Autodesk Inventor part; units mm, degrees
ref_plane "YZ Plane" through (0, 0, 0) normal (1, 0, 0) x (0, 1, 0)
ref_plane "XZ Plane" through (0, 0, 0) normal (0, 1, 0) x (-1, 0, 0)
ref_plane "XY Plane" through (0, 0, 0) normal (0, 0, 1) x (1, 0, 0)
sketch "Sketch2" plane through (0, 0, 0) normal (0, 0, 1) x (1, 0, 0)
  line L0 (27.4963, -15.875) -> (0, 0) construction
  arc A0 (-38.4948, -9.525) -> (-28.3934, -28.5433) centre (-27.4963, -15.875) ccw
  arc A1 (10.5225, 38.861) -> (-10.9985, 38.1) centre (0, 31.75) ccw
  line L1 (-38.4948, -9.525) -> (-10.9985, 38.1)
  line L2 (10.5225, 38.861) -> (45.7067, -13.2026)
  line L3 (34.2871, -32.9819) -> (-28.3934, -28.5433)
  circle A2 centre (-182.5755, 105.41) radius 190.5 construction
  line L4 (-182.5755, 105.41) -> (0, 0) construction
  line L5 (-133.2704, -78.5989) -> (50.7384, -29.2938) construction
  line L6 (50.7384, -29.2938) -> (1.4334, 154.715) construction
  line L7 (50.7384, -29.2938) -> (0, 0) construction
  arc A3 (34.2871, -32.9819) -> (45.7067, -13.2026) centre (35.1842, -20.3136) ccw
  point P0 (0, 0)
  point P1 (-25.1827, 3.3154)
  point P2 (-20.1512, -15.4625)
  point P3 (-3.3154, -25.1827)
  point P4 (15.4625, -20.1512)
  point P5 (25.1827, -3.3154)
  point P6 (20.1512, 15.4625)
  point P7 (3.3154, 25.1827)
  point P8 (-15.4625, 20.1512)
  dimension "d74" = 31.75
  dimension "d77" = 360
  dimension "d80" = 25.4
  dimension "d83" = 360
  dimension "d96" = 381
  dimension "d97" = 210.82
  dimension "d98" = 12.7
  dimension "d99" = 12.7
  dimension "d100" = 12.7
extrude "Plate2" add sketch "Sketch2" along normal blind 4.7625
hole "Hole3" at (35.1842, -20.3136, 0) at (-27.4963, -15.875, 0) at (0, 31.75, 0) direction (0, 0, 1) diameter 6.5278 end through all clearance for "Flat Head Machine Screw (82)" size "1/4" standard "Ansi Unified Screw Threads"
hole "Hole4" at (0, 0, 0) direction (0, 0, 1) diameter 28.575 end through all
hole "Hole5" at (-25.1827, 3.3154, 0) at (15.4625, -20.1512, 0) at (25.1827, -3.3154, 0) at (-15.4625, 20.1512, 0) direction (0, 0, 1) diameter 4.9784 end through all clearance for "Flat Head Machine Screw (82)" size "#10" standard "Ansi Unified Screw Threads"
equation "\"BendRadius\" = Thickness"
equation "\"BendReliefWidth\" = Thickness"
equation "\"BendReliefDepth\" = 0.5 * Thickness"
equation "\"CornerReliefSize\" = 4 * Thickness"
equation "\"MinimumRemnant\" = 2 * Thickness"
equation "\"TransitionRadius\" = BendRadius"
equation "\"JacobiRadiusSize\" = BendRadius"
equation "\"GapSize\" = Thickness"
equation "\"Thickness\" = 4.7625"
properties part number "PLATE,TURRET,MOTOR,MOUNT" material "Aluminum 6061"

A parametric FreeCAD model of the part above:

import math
import FreeCAD as App
import Part
import Sketcher
Q = App.Units.Quantity

doc = App.newDocument("Part")
body = doc.addObject("PartDesign::Body", "Body")

# Sketch on XY plane
sketch1 = body.newObject("Sketcher::SketchObject", "Sketch")
sketch1.AttachmentSupport = (doc.getObject("XY_Plane"), [""])
sketch1.MapMode = "FlatFace"
sketch1.addGeometry([
    Part.LineSegment(App.Vector(-11, 38, 0), App.Vector(-38, -10, 0)),  # 0
    Part.ArcOfCircle(Part.Circle(App.Vector(-27, -16, 0), App.Vector(0, 0, 1), 13), math.radians(150), math.radians(266)),  # 1
    Part.LineSegment(App.Vector(-28, -29, 0), App.Vector(34, -33, 0)),  # 2
    Part.ArcOfCircle(Part.Circle(App.Vector(35, -20, 0), App.Vector(0, 0, 1), 13), math.radians(-94), math.radians(34)),  # 3
    Part.LineSegment(App.Vector(46, -13, 0), App.Vector(11, 39, 0)),  # 4
    Part.ArcOfCircle(Part.Circle(App.Vector(0, 32, 0), App.Vector(0, 0, 1), 13), math.radians(34), math.radians(150)),  # 5
], False)
sketch1.addConstraint([
    Sketcher.Constraint("Tangent", 0, 2, 1, 1),
    Sketcher.Constraint("Tangent", 1, 2, 2, 1),
    Sketcher.Constraint("Tangent", 2, 2, 3, 1),
    Sketcher.Constraint("Tangent", 3, 2, 4, 1),
    Sketcher.Constraint("Tangent", 4, 2, 5, 1),
    Sketcher.Constraint("Tangent", 5, 2, 0, 1),
    Sketcher.Constraint("Equal", 1, 3),
    Sketcher.Constraint("Equal", 3, 5),
    Sketcher.Constraint("PointOnObject", 5, 3, -2),
    Sketcher.Constraint("Equal", 2, 4),
    Sketcher.Constraint("Radius", 1, Q("0.5 in")),
    Sketcher.Constraint("DistanceY", -1, 1, 5, 3, Q("1.25 in")),
    Sketcher.Constraint("Angle", 0, Q("-120 deg")),
    Sketcher.Constraint("Angle", 2, Q("-4.0505 deg")),
    Sketcher.Constraint("DistanceY", 1, 3, -1, 1, Q("0.625 in")),
])
pad1 = body.newObject("PartDesign::Pad", "Pad")
pad1.Profile = sketch1
pad1.Length = Q("0.1875 in")

# Sketch on XY plane
sketch2 = body.newObject("Sketcher::SketchObject", "Sketch001")
sketch2.AttachmentSupport = (doc.getObject("XY_Plane"), [""])
sketch2.MapMode = "FlatFace"
sketch2.addGeometry([
    Part.Circle(App.Vector(35.2, -20.3, 0), App.Vector(0, 0, 1), 3.3),
    Part.Circle(App.Vector(-27.5, -15.9, 0), App.Vector(0, 0, 1), 3.3),
    Part.Circle(App.Vector(0, 31.8, 0), App.Vector(0, 0, 1), 3.3),
], False)
sketch2.addConstraint([
    Sketcher.Constraint("Equal", 0, 1),
    Sketcher.Constraint("Equal", 1, 2),
    Sketcher.Constraint("PointOnObject", 2, 3, -2),
    Sketcher.Constraint("Diameter", 0, Q("0.257 in")),
    Sketcher.Constraint("DistanceY", -1, 1, 2, 3, Q("1.25 in")),
    Sketcher.Constraint("DistanceY", 1, 3, -1, 1, Q("0.625 in")),
    Sketcher.Constraint("DistanceX", -1, 1, 0, 3, Q("1.3852 in")),
    Sketcher.Constraint("DistanceY", 0, 3, -1, 1, 20.3136),
    Sketcher.Constraint("DistanceX", 1, 3, -1, 1, 27.4963),
])
doc.recompute()
hole = body.newObject("PartDesign::Hole", "Hole")
hole.Profile = sketch2
hole.ThreadType = "None"
hole.Diameter = Q("0.257 in")
hole.DepthType = "ThroughAll"
hole.Reversed = True

# Sketch on XY plane
sketch3 = body.newObject("Sketcher::SketchObject", "Sketch002")
sketch3.AttachmentSupport = (doc.getObject("XY_Plane"), [""])
sketch3.MapMode = "FlatFace"
sketch3.addGeometry(Part.Circle(App.Vector(0, 0, 0), App.Vector(0, 0, 1), 14), False)
sketch3.addConstraint([
    Sketcher.Constraint("Coincident", 0, 3, -1, 1),
    Sketcher.Constraint("Diameter", 0, Q("1.125 in")),
])
doc.recompute()
hole2 = body.newObject("PartDesign::Hole", "Hole001")
hole2.Profile = sketch3
hole2.ThreadType = "None"
hole2.Diameter = Q("1.125 in")
hole2.DepthType = "ThroughAll"
hole2.Reversed = True

# Sketch on XY plane
sketch4 = body.newObject("Sketcher::SketchObject", "Sketch003")
sketch4.AttachmentSupport = (doc.getObject("XY_Plane"), [""])
sketch4.MapMode = "FlatFace"
sketch4.addGeometry([
    Part.Circle(App.Vector(-25.2, 3.3, 0), App.Vector(0, 0, 1), 2.5),
    Part.Circle(App.Vector(15.5, -20.2, 0), App.Vector(0, 0, 1), 2.5),
    Part.Circle(App.Vector(25.2, -3.3, 0), App.Vector(0, 0, 1), 2.5),
    Part.Circle(App.Vector(-15.5, 20.2, 0), App.Vector(0, 0, 1), 2.5),
], False)
sketch4.addConstraint([
    Sketcher.Constraint("Equal", 0, 1),
    Sketcher.Constraint("Equal", 1, 2),
    Sketcher.Constraint("Equal", 2, 3),
    Sketcher.Constraint("Symmetric", 0, 3, 2, 3, -1, 1),
    Sketcher.Constraint("Symmetric", 1, 3, 3, 3, -1, 1),
    Sketcher.Constraint("Diameter", 0, Q("0.196 in")),
    Sketcher.Constraint("DistanceX", 0, 3, 1, 3, Q("1.6002 in")),
    Sketcher.Constraint("DistanceX", 0, 3, 2, 3, Q("1.9829 in")),
    Sketcher.Constraint("DistanceY", 1, 3, 3, 3, Q("1.5867 in")),
    Sketcher.Constraint("DistanceY", -1, 1, 0, 3, 3.3154),
])
doc.recompute()
hole3 = body.newObject("PartDesign::Hole", "Hole002")
hole3.Profile = sketch4
hole3.ThreadType = "None"
hole3.Diameter = Q("0.196 in")
hole3.DepthType = "ThroughAll"
hole3.Reversed = True

doc.recompute()
